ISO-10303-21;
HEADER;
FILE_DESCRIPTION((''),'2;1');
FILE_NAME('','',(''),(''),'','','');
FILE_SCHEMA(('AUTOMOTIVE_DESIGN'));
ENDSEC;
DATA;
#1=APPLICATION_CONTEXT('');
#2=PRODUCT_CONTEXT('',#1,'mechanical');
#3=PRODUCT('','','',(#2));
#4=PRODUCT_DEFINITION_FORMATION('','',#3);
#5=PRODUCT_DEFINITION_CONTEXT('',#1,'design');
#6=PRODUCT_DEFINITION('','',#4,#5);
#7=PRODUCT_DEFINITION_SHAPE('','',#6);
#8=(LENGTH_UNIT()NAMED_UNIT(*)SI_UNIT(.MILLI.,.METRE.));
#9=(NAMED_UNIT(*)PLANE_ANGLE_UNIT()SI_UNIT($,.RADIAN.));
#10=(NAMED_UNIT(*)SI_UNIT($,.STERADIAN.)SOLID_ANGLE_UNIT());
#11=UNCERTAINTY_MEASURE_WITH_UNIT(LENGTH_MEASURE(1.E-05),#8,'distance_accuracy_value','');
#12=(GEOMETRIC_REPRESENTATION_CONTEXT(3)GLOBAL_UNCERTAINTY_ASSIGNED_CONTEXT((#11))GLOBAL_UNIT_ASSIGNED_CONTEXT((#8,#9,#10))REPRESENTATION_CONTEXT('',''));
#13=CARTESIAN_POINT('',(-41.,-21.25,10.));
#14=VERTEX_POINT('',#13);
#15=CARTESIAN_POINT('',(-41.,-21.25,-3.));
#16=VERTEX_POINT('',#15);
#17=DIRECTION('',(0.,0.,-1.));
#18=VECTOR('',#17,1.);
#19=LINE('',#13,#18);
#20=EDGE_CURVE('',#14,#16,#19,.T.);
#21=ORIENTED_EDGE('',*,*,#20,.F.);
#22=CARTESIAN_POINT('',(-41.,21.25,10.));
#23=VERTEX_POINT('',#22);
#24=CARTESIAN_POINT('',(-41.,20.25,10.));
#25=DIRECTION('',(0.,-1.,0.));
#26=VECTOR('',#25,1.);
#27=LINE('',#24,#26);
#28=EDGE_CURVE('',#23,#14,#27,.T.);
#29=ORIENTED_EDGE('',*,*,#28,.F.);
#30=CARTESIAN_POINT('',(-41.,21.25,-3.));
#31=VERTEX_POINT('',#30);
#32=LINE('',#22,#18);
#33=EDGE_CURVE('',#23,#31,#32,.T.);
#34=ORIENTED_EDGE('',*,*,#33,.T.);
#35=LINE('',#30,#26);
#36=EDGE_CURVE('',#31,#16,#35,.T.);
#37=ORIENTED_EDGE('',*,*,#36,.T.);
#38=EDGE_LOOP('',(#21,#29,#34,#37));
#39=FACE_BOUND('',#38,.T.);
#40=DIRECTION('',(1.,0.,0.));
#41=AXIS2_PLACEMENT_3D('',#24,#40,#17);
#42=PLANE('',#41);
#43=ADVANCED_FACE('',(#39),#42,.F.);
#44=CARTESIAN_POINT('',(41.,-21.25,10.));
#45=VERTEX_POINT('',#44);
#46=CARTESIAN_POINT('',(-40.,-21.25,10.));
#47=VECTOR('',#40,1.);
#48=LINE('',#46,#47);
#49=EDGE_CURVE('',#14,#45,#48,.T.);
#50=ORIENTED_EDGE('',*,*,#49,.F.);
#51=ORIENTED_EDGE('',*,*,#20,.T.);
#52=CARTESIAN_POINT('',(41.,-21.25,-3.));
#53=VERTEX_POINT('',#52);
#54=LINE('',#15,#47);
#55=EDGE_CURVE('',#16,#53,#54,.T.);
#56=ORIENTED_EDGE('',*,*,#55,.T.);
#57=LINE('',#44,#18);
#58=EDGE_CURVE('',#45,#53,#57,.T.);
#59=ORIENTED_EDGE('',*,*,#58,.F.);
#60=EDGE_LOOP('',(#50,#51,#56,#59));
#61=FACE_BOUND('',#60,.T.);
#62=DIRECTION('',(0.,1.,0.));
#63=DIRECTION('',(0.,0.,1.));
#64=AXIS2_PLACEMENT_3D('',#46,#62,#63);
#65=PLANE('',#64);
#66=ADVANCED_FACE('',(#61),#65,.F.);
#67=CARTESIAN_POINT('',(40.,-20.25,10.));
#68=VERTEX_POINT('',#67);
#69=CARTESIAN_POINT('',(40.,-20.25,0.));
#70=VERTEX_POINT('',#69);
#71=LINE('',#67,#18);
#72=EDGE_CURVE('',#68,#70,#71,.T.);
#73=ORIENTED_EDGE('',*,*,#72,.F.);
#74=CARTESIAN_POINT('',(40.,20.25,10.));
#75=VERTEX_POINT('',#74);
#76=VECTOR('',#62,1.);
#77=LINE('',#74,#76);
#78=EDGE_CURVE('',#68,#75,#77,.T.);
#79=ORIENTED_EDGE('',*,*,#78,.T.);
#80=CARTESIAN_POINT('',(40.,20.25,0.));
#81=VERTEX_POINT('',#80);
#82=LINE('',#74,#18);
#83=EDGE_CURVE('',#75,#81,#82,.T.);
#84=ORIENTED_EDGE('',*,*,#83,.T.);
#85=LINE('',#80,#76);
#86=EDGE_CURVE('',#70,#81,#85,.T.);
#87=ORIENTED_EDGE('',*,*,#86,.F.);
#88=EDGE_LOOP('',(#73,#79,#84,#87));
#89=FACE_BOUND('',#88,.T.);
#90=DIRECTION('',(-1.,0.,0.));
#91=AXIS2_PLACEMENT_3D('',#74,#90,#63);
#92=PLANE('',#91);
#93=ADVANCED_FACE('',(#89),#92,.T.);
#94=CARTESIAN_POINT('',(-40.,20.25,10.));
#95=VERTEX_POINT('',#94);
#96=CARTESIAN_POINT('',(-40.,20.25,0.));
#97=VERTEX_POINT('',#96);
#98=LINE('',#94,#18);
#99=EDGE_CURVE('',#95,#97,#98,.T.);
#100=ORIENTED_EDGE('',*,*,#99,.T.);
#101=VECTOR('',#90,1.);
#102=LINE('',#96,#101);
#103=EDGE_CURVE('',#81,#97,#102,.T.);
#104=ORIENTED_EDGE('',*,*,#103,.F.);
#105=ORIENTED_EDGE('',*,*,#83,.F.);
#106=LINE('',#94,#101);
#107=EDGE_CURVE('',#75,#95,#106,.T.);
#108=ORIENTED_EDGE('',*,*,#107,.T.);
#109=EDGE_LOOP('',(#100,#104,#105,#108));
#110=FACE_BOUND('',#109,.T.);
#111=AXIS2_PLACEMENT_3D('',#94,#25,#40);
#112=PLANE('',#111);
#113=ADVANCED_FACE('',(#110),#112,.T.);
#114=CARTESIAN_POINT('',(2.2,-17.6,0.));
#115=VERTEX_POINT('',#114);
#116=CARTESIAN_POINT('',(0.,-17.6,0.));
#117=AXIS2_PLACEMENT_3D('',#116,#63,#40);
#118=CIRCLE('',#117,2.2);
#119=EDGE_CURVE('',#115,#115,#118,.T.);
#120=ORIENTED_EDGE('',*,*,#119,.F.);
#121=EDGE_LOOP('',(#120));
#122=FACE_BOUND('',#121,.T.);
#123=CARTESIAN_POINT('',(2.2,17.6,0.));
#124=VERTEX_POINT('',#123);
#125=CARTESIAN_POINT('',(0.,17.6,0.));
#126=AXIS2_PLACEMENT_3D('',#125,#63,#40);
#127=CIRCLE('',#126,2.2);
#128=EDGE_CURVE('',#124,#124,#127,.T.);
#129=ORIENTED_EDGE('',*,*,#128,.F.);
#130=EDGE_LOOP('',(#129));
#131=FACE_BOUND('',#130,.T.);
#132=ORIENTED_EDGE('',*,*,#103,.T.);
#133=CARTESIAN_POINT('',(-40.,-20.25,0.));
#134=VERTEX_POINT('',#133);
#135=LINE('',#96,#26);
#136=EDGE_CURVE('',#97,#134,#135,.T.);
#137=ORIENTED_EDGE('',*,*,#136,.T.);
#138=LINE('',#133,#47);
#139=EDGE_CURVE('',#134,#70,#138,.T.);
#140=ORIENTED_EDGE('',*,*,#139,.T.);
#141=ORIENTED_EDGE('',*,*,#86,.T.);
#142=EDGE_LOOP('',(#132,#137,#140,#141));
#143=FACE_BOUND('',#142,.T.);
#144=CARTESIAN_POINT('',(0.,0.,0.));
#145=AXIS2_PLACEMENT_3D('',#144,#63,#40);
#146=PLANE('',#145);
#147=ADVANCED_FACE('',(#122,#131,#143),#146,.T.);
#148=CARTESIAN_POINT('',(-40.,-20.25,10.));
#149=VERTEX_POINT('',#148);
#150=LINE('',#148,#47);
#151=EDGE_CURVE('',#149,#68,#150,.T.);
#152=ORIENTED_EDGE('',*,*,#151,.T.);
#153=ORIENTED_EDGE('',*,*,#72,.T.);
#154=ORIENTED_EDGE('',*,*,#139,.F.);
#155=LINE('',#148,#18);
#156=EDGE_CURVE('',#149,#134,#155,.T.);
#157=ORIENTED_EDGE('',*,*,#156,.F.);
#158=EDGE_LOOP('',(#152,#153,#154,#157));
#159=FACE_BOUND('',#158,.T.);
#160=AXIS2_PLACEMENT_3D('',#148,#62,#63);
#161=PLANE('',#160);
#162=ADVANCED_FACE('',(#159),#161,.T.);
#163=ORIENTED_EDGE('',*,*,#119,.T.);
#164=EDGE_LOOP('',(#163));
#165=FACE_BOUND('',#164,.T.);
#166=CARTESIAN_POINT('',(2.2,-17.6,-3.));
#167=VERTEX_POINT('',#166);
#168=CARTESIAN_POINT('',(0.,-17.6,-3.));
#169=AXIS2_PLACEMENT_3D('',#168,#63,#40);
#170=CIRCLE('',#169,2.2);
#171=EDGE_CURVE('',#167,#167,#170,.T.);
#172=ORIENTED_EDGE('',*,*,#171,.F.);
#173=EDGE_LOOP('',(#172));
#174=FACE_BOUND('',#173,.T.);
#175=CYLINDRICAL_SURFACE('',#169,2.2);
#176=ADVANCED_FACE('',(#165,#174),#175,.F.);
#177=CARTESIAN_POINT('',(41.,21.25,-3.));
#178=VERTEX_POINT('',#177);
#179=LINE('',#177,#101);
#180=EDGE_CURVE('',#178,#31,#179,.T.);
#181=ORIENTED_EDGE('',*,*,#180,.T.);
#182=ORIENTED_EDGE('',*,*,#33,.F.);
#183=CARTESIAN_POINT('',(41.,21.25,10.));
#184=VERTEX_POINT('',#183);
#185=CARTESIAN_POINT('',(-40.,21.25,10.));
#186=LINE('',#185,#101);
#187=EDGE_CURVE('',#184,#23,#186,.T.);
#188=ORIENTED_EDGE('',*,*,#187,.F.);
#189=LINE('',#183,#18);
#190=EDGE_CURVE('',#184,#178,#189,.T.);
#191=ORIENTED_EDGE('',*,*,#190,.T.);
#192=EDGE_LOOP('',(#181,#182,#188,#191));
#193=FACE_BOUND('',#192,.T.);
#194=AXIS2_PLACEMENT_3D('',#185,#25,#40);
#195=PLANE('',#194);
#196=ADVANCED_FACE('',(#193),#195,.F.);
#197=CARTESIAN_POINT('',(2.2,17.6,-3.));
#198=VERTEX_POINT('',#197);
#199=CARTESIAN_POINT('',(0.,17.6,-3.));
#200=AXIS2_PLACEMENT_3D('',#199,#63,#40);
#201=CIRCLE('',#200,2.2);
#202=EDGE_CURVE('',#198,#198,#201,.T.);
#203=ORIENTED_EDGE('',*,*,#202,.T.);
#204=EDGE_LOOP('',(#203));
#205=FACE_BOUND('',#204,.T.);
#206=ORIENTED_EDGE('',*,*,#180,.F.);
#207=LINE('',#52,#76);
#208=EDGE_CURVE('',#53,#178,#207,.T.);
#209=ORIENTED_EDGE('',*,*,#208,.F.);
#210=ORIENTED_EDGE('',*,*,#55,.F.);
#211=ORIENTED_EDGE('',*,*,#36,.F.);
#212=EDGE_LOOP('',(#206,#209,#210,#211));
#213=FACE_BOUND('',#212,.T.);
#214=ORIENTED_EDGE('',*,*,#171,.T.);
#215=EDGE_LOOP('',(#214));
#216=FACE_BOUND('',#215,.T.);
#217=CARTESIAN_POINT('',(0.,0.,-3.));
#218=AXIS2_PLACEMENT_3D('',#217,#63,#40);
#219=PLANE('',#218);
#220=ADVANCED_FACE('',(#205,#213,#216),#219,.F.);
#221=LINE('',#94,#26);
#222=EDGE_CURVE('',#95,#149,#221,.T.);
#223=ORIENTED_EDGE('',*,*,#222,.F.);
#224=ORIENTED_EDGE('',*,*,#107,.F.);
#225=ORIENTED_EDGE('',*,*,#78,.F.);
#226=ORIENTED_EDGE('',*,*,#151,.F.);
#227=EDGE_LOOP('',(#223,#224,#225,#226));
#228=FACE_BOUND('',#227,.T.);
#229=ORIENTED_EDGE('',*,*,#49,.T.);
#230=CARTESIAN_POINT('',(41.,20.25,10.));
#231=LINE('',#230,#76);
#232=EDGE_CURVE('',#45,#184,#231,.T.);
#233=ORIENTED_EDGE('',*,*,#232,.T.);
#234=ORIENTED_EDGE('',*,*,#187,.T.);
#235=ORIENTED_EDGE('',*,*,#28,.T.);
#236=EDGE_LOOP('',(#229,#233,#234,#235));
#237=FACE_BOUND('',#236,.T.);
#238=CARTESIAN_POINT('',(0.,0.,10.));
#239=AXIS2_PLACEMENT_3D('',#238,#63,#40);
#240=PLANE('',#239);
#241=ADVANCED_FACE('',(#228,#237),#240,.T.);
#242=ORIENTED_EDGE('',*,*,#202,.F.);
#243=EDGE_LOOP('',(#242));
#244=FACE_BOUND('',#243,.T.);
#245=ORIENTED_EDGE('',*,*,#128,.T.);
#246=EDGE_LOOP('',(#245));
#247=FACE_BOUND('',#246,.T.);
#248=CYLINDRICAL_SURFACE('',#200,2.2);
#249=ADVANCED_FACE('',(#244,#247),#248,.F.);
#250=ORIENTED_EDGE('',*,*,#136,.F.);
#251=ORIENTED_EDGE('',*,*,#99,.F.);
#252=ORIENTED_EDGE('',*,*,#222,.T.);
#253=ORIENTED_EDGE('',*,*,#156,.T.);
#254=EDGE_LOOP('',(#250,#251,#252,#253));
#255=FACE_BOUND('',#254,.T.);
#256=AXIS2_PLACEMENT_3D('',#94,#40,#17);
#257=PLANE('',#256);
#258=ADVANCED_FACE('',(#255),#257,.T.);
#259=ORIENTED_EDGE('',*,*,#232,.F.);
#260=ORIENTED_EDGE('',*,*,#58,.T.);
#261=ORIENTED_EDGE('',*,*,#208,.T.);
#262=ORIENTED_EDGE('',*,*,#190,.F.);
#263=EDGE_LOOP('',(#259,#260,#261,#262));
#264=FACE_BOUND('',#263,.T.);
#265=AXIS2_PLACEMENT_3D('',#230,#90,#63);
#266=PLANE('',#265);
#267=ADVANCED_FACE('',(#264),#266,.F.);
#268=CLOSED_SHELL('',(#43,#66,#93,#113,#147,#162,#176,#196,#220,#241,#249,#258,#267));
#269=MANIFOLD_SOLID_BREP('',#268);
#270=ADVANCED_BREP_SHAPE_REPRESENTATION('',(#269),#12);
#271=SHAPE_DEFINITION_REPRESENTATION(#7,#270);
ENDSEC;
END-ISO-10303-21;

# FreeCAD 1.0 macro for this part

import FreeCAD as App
import Part
import Sketcher
from FreeCAD import Vector


def add_polygon(sketch, points):
    """Adds a closed chain of lines whose ends are joined by coincident constraints."""
    first, n = sketch.GeometryCount, len(points)
    for a, b in zip(points, points[1:] + points[:1]):
        sketch.addGeometry(Part.LineSegment(App.Vector(*a, 0), App.Vector(*b, 0)), False)
    for i in range(n):
        sketch.addConstraint(Sketcher.Constraint("Coincident", first + i, 2, first + (i + 1) % n, 1))

doc = App.newDocument("Part")
params = doc.addObject("Spreadsheet::Sheet", "Params")
for row, (alias, value) in enumerate([
    ("sketch1_width", "82 mm"),
    ("sketch1_width2", "80 mm"),
    ("sketch1_height", "42.5 mm"),
    ("sketch1_height2", "40.5 mm"),
    ("pad1_length", "10 mm"),
    ("sketch2_width", "82 mm"),
    ("sketch2_height", "42.5 mm"),
    ("pad2_length", "3 mm"),
    ("sketch3_diameter", "4.4 mm"),
], start=1):
    params.set(f"A{row}", alias)
    params.set(f"B{row}", "=" + value)
    params.setAlias(f"B{row}", alias)

body = doc.addObject("PartDesign::Body", "Body")

# Sketch on XY plane
sketch1 = doc.addObject("Sketcher::SketchObject", "Sketch")
body.addObject(sketch1)
sketch1.AttachmentSupport = (doc.XY_Plane, [""])
sketch1.MapMode = "FlatFace"
add_polygon(sketch1, [(-41, 21.25), (-41, -21.25), (41, -21.25), (41, 21.25)])  # lines 0-3
add_polygon(sketch1, [(40, -20.25), (-40, -20.25), (-40, 20.25), (40, 20.25)])  # lines 4-7
sketch1.addConstraint(Sketcher.Constraint("Vertical", 0))
sketch1.addConstraint(Sketcher.Constraint("Horizontal", 1))
sketch1.addConstraint(Sketcher.Constraint("Vertical", 2))
sketch1.addConstraint(Sketcher.Constraint("Horizontal", 3))
sketch1.addConstraint(Sketcher.Constraint("Horizontal", 4))
sketch1.addConstraint(Sketcher.Constraint("Vertical", 5))
sketch1.addConstraint(Sketcher.Constraint("Horizontal", 6))
sketch1.addConstraint(Sketcher.Constraint("Vertical", 7))
sketch1.addConstraint(Sketcher.Constraint("Symmetric", 0, 2, 2, 2, -1, 1))
sketch1.addConstraint(Sketcher.Constraint("Symmetric", 4, 2, 6, 2, -1, 1))
sketch1.addConstraint(Sketcher.Constraint("DistanceX", 1, 1, 1, 2, 82.0))
sketch1.addConstraint(Sketcher.Constraint("DistanceX", 4, 2, 4, 1, 80.0))
sketch1.addConstraint(Sketcher.Constraint("DistanceY", 0, 2, 0, 1, 42.5))
sketch1.addConstraint(Sketcher.Constraint("DistanceY", 5, 1, 5, 2, 40.5))
sketch1.setExpression("Constraints[18]", "Params.sketch1_width")
sketch1.setExpression("Constraints[19]", "Params.sketch1_width2")
sketch1.setExpression("Constraints[20]", "Params.sketch1_height")
sketch1.setExpression("Constraints[21]", "Params.sketch1_height2")
pad1 = doc.addObject("PartDesign::Pad", "Pad")
body.addObject(pad1)
pad1.Profile = sketch1
pad1.setExpression("Length", "Params.pad1_length")

# Sketch on XY plane
sketch2 = doc.addObject("Sketcher::SketchObject", "Sketch001")
body.addObject(sketch2)
sketch2.AttachmentSupport = (doc.XY_Plane, [""])
sketch2.MapMode = "FlatFace"
add_polygon(sketch2, [(-41, 21.25), (-41, -21.25), (41, -21.25), (41, 21.25)])  # lines 0-3
sketch2.addConstraint(Sketcher.Constraint("Vertical", 0))
sketch2.addConstraint(Sketcher.Constraint("Horizontal", 1))
sketch2.addConstraint(Sketcher.Constraint("Vertical", 2))
sketch2.addConstraint(Sketcher.Constraint("Horizontal", 3))
sketch2.addConstraint(Sketcher.Constraint("Symmetric", 0, 2, 2, 2, -1, 1))
sketch2.addConstraint(Sketcher.Constraint("DistanceX", 1, 1, 1, 2, 82.0))
sketch2.addConstraint(Sketcher.Constraint("DistanceY", 0, 2, 0, 1, 42.5))
sketch2.setExpression("Constraints[9]", "Params.sketch2_width")
sketch2.setExpression("Constraints[10]", "Params.sketch2_height")
pad2 = doc.addObject("PartDesign::Pad", "Pad001")
body.addObject(pad2)
pad2.Profile = sketch2
pad2.setExpression("Length", "Params.pad2_length")
pad2.Reversed = True

# Sketch on XY plane
sketch3 = doc.addObject("Sketcher::SketchObject", "Sketch002")
body.addObject(sketch3)
sketch3.AttachmentSupport = (doc.XY_Plane, [""])
sketch3.MapMode = "FlatFace"
sketch3.addGeometry(Part.Circle(Vector(0, -17.6, 0), Vector(0, 0, 1), 2.2), False)
sketch3.addGeometry(Part.Circle(Vector(0, 17.6, 0), Vector(0, 0, 1), 2.2), False)
sketch3.addConstraint(Sketcher.Constraint("Equal", 0, 1))
sketch3.addConstraint(Sketcher.Constraint("Symmetric", 0, 3, 1, 3, -1, 1))
sketch3.addConstraint(Sketcher.Constraint("PointOnObject", 0, 3, -2))
sketch3.addConstraint(Sketcher.Constraint("Diameter", 0, 4.4))
sketch3.addConstraint(Sketcher.Constraint("DistanceY", 0, 3, -1, 1, 17.6))
sketch3.setExpression("Constraints[3]", "Params.sketch3_diameter")
pocket1 = doc.addObject("PartDesign::Pocket", "Pocket")
body.addObject(pocket1)
pocket1.Profile = sketch3
pocket1.Type = "ThroughAll"
pocket1.Midplane = True

doc.recompute()
